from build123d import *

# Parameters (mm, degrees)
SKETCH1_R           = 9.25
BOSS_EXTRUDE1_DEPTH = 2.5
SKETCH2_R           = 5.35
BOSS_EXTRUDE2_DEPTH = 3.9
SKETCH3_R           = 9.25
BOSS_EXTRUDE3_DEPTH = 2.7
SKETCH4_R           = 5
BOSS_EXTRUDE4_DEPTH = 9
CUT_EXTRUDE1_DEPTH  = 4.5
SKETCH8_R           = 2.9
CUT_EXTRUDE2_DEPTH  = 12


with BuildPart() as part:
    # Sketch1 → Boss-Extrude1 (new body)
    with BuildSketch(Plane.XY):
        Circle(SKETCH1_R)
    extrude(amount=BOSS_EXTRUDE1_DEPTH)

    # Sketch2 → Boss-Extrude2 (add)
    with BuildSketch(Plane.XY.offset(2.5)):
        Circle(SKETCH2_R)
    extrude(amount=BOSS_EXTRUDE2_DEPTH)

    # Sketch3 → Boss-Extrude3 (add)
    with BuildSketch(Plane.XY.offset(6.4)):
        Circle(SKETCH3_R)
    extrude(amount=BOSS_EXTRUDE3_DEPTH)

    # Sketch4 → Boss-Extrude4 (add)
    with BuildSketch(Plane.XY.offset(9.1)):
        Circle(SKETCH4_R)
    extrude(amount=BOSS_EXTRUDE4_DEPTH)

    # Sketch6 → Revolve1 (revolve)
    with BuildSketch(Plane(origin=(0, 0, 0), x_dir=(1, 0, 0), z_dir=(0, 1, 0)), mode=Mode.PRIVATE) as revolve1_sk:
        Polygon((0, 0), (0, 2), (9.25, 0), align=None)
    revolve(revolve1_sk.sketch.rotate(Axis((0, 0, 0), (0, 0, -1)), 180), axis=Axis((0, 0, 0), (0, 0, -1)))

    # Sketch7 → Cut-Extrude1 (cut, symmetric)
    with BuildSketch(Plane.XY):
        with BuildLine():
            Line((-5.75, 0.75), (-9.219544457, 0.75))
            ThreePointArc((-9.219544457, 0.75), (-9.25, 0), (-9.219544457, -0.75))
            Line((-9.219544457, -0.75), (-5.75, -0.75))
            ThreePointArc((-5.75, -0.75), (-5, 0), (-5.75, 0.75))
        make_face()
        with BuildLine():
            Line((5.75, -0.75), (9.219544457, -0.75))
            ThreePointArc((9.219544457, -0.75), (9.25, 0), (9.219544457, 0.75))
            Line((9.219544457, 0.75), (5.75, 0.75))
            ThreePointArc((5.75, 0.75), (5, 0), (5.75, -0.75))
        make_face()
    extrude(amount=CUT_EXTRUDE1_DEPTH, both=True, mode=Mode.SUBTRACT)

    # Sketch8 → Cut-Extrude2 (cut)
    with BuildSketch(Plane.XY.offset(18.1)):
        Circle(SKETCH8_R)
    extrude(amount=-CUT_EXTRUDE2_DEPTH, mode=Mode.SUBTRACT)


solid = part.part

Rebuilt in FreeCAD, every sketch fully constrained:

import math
import FreeCAD as App
import Part
import Sketcher

V = App.Vector
Q = App.Units.Quantity

doc = App.newDocument("Part")
body = doc.addObject("PartDesign::Body", "Body")

sketch1 = body.newObject("Sketcher::SketchObject", "Sketch")
sketch1.AttachmentSupport = (doc.getObject("XY_Plane"), [""])
sketch1.MapMode = "FlatFace"
sketch1.addGeometry(Part.Circle(V(0, 0, 0), V(0, 0, 1), 9), False)
sketch1.addConstraint([
    Sketcher.Constraint("Coincident", 0, 3, -1, 1),
    Sketcher.Constraint("Diameter", 0, Q("18.5 mm")),
])
pad1 = body.newObject("PartDesign::Pad", "Pad")
pad1.Profile = sketch1
pad1.Length = 2.5

sketch2 = body.newObject("Sketcher::SketchObject", "Sketch001")
sketch2.AttachmentSupport = (doc.getObject("XY_Plane"), [""])
sketch2.MapMode = "FlatFace"
sketch2.AttachmentOffset = App.Placement(V(0, 0, 2.5), App.Rotation())
sketch2.addGeometry(Part.Circle(V(0, 0, 0), V(0, 0, 1), 5), False)
sketch2.addConstraint([
    Sketcher.Constraint("Coincident", 0, 3, -1, 1),
    Sketcher.Constraint("Diameter", 0, Q("10.7 mm")),
])
pad2 = body.newObject("PartDesign::Pad", "Pad001")
pad2.Profile = sketch2
pad2.Length = 3.9

sketch3 = body.newObject("Sketcher::SketchObject", "Sketch002")
sketch3.AttachmentSupport = (doc.getObject("XY_Plane"), [""])
sketch3.MapMode = "FlatFace"
sketch3.AttachmentOffset = App.Placement(V(0, 0, 6.4), App.Rotation())
sketch3.addGeometry(Part.Circle(V(0, 0, 0), V(0, 0, 1), 9), False)
sketch3.addConstraint([
    Sketcher.Constraint("Coincident", 0, 3, -1, 1),
    Sketcher.Constraint("Diameter", 0, Q("18.5 mm")),
])
pad3 = body.newObject("PartDesign::Pad", "Pad002")
pad3.Profile = sketch3
pad3.Length = 2.7

sketch4 = body.newObject("Sketcher::SketchObject", "Sketch003")
sketch4.AttachmentSupport = (doc.getObject("XY_Plane"), [""])
sketch4.MapMode = "FlatFace"
sketch4.AttachmentOffset = App.Placement(V(0, 0, 9.1), App.Rotation())
sketch4.addGeometry(Part.Circle(V(0, 0, 0), V(0, 0, 1), 5), False)
sketch4.addConstraint([
    Sketcher.Constraint("Coincident", 0, 3, -1, 1),
    Sketcher.Constraint("Diameter", 0, Q("10 mm")),
])
pad4 = body.newObject("PartDesign::Pad", "Pad003")
pad4.Profile = sketch4
pad4.Length = 9

sketch5 = body.newObject("Sketcher::SketchObject", "Sketch004")
sketch5.AttachmentSupport = (doc.getObject("XZ_Plane"), [""])
sketch5.MapMode = "FlatFace"
sketch5.addGeometry([
    Part.LineSegment(V(0, -2, 0), V(0, 0, 0)),
    Part.LineSegment(V(0, 0, 0), V(9.2, 0, 0)),
    Part.LineSegment(V(9.2, 0, 0), V(0, -2, 0)),
], False)
sketch5.addConstraint([
    Sketcher.Constraint("Coincident", 0, 2, 1, 1),
    Sketcher.Constraint("Coincident", 1, 2, 2, 1),
    Sketcher.Constraint("Coincident", 2, 2, 0, 1),
    Sketcher.Constraint("Vertical", 0),
    Sketcher.Constraint("Horizontal", 1),
    Sketcher.Constraint("Coincident", 0, 2, -1, 1),
    Sketcher.Constraint("DistanceY", 0, 1, 0, 2, Q("2 mm")),
    Sketcher.Constraint("DistanceX", 1, 1, 1, 2, Q("9.25 mm")),
])
revolution = body.newObject("PartDesign::Revolution", "Revolution")
revolution.Profile = sketch5
revolution.ReferenceAxis = (sketch5, ["V_Axis"])
revolution.Angle = 360

sketch6 = body.newObject("Sketcher::SketchObject", "Sketch005")
sketch6.AttachmentSupport = (doc.getObject("XY_Plane"), [""])
sketch6.MapMode = "FlatFace"
sketch6.addGeometry([
    Part.LineSegment(V(-5.8, 0.8, 0), V(-9.2, 0.8, 0)),
    Part.ArcOfCircle(Part.Circle(V(0, 0, 0), V(0, 0, 1), 9.2), math.radians(175.35), math.radians(184.65)),
    Part.LineSegment(V(-9.2, -0.8, 0), V(-5.8, -0.8, 0)),
    Part.ArcOfCircle(Part.Circle(V(-5.8, 0, 0), V(0, 0, 1), 0.8), math.radians(-90), math.radians(90)),
    Part.LineSegment(V(5.8, -0.8, 0), V(9.2, -0.8, 0)),
    Part.ArcOfCircle(Part.Circle(V(0, 0, 0), V(0, 0, 1), 9.2), math.radians(-4.65), math.radians(4.65)),
    Part.LineSegment(V(9.2, 0.8, 0), V(5.8, 0.8, 0)),
    Part.ArcOfCircle(Part.Circle(V(5.8, 0, 0), V(0, 0, 1), 0.8), math.radians(90), math.radians(270)),
], False)
sketch6.addConstraint([
    Sketcher.Constraint("Coincident", 0, 2, 1, 1),
    Sketcher.Constraint("Coincident", 1, 2, 2, 1),
    Sketcher.Constraint("Tangent", 2, 2, 3, 1),
    Sketcher.Constraint("Tangent", 3, 2, 0, 1),
    Sketcher.Constraint("Coincident", 4, 2, 5, 1),
    Sketcher.Constraint("Coincident", 5, 2, 6, 1),
    Sketcher.Constraint("Tangent", 6, 2, 7, 1),
    Sketcher.Constraint("Tangent", 7, 2, 4, 1),
    Sketcher.Constraint("Horizontal", 0),
    Sketcher.Constraint("Horizontal", 2),
    Sketcher.Constraint("Horizontal", 4),
    Sketcher.Constraint("Horizontal", 6),
    Sketcher.Constraint("Coincident", 1, 3, -1, 1),
    Sketcher.Constraint("Coincident", 5, 3, -1, 1),
    Sketcher.Constraint("Equal", 1, 5),
    Sketcher.Constraint("Equal", 3, 7),
    Sketcher.Constraint("Symmetric", 3, 3, 7, 3, -1, 1),
    Sketcher.Constraint("PointOnObject", 3, 3, -1),
    Sketcher.Constraint("Radius", 1, Q("9.25 mm")),
    Sketcher.Constraint("Radius", 3, Q("0.75 mm")),
    Sketcher.Constraint("DistanceX", 3, 3, 7, 3, Q("11.5 mm")),
])
pocket1 = body.newObject("PartDesign::Pocket", "Pocket")
pocket1.Profile = sketch6
pocket1.Length = 9
pocket1.Midplane = True

sketch7 = body.newObject("Sketcher::SketchObject", "Sketch006")
sketch7.AttachmentSupport = (doc.getObject("XY_Plane"), [""])
sketch7.MapMode = "FlatFace"
sketch7.AttachmentOffset = App.Placement(V(0, 0, 18.1), App.Rotation())
sketch7.addGeometry(Part.Circle(V(0, 0, 0), V(0, 0, 1), 2.9), False)
sketch7.addConstraint([
    Sketcher.Constraint("Coincident", 0, 3, -1, 1),
    Sketcher.Constraint("Diameter", 0, Q("5.8 mm")),
])
pocket2 = body.newObject("PartDesign::Pocket", "Pocket001")
pocket2.Profile = sketch7
pocket2.Length = 12

doc.recompute()
